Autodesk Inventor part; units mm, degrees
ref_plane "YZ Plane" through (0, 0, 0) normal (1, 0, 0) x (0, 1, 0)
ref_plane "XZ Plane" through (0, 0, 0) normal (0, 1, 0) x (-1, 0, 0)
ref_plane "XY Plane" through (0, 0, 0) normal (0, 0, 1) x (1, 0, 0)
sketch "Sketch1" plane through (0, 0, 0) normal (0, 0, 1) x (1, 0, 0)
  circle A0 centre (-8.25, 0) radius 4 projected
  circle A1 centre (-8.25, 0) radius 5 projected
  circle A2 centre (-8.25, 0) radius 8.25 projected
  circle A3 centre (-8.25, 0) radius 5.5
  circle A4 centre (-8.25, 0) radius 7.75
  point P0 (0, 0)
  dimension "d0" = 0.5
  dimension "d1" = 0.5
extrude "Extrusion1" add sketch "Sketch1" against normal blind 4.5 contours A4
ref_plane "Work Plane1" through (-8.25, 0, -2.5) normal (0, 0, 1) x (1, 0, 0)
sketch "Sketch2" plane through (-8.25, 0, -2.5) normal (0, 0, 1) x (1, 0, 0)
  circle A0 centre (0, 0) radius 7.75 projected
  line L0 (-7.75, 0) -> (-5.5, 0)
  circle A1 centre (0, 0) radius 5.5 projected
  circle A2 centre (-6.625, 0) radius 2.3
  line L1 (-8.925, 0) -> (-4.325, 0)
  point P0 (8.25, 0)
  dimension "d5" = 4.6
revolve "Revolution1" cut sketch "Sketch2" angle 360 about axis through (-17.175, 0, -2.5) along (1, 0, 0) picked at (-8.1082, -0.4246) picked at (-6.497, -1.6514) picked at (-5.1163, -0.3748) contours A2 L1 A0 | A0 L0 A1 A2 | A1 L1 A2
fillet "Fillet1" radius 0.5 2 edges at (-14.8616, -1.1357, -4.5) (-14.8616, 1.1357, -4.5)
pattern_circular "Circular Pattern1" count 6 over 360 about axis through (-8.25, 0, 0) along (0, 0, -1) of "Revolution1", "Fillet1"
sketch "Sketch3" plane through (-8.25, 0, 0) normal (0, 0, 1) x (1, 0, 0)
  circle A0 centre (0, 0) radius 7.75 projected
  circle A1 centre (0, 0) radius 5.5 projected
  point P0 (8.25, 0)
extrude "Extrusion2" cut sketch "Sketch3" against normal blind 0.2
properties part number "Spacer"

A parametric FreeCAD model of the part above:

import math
import FreeCAD as App
import Part
import Sketcher
from FreeCAD import Vector


def edges_at(feature, points):
    """Names of the edges that pass closest to the given points."""
    edges = feature.Shape.Edges
    near = lambda p: min(range(len(edges)), key=lambda i: edges[i].distToShape(Part.Vertex(*p))[0])
    return sorted({f"Edge{near(p) + 1}" for p in points})

doc = App.newDocument("Part")
body = doc.addObject("PartDesign::Body", "Body")

sketch1 = doc.addObject("Sketcher::SketchObject", "Sketch")
body.addObject(sketch1)
sketch1.AttachmentSupport = (doc.XY_Plane, [""])
sketch1.MapMode = "FlatFace"
sketch1.addGeometry([
    Part.Circle(Vector(-8.25, 0, 0), Vector(0, 0, 1), 7.75),
    Part.Circle(Vector(-8.25, 0, 0), Vector(0, 0, 1), 5.5),
], False)
sketch1.addConstraint([
    Sketcher.Constraint("Coincident", 1, 3, 0, 3),
    Sketcher.Constraint("PointOnObject", 0, 3, -1),
    Sketcher.Constraint("Diameter", 1, 11.0),
    Sketcher.Constraint("Diameter", 0, 15.5),
    Sketcher.Constraint("DistanceX", 0, 3, -1, 1, 8.25),
])
pad1 = doc.addObject("PartDesign::Pad", "Pad")
body.addObject(pad1)
pad1.Profile = sketch1
pad1.Length = 4.5
pad1.Reversed = True

sketch2 = doc.addObject("Sketcher::SketchObject", "Sketch001")
body.addObject(sketch2)
sketch2.AttachmentSupport = (doc.XY_Plane, [""])
sketch2.MapMode = "FlatFace"
sketch2.AttachmentOffset = App.Placement(Vector(0, 0, -2.5), App.Rotation())
sketch2.addGeometry([
    Part.ArcOfCircle(Part.Circle(Vector(-14.875, 0, 0), Vector(0, 0, 1), 2.3), math.radians(180), math.radians(360)),
    Part.LineSegment(Vector(-12.575, 0, 0), Vector(-17.175, 0, 0)),
], False)
sketch2.addConstraint([
    Sketcher.Constraint("Coincident", 0, 1, 1, 2),
    Sketcher.Constraint("Coincident", 1, 1, 0, 2),
    Sketcher.Constraint("Horizontal", 1),
    Sketcher.Constraint("PointOnObject", 0, 3, -1),
    Sketcher.Constraint("PointOnObject", 0, 1, -1),
    Sketcher.Constraint("Radius", 0, 2.3),
    Sketcher.Constraint("DistanceX", 0, 3, -1, 1, 14.875),
])
groove = doc.addObject("PartDesign::Groove", "Groove")
body.addObject(groove)
groove.Profile = sketch2
groove.ReferenceAxis = (sketch2, ["H_Axis"])
groove.Angle = 360
doc.recompute()

fillet = doc.addObject("PartDesign::Fillet", "Fillet")
body.addObject(fillet)
fillet.Base = (groove, edges_at(groove, [(-14.862, -1.136, -4.5), (-14.862, 1.136, -4.5)]))
fillet.Radius = 0.5
doc.recompute()

datumline = doc.addObject("PartDesign::Line", "DatumLine")
body.addObject(datumline)
datumline.Placement = App.Placement(Vector(-8.25, 0, 0), App.Rotation(Vector(0, 0, 1), Vector(0, 0, 1)))
polarpattern = doc.addObject("PartDesign::PolarPattern", "PolarPattern")
body.addObject(polarpattern)
polarpattern.Originals = [groove, fillet]
polarpattern.Axis = (datumline, [""])
polarpattern.Angle = 360
polarpattern.Occurrences = 6
body.Tip = polarpattern

sketch3 = doc.addObject("Sketcher::SketchObject", "Sketch002")
body.addObject(sketch3)
sketch3.AttachmentSupport = (doc.XY_Plane, [""])
sketch3.MapMode = "FlatFace"
sketch3.addGeometry([
    Part.Circle(Vector(-8.25, 0, 0), Vector(0, 0, 1), 7.75),
    Part.Circle(Vector(-8.25, 0, 0), Vector(0, 0, 1), 5.5),
], False)
sketch3.addConstraint([
    Sketcher.Constraint("Coincident", 1, 3, 0, 3),
    Sketcher.Constraint("PointOnObject", 0, 3, -1),
    Sketcher.Constraint("Diameter", 1, 11.0),
    Sketcher.Constraint("Diameter", 0, 15.5),
    Sketcher.Constraint("DistanceX", 0, 3, -1, 1, 8.25),
])
pocket1 = doc.addObject("PartDesign::Pocket", "Pocket")
body.addObject(pocket1)
pocket1.Profile = sketch3
pocket1.Length = 0.2

doc.recompute()
